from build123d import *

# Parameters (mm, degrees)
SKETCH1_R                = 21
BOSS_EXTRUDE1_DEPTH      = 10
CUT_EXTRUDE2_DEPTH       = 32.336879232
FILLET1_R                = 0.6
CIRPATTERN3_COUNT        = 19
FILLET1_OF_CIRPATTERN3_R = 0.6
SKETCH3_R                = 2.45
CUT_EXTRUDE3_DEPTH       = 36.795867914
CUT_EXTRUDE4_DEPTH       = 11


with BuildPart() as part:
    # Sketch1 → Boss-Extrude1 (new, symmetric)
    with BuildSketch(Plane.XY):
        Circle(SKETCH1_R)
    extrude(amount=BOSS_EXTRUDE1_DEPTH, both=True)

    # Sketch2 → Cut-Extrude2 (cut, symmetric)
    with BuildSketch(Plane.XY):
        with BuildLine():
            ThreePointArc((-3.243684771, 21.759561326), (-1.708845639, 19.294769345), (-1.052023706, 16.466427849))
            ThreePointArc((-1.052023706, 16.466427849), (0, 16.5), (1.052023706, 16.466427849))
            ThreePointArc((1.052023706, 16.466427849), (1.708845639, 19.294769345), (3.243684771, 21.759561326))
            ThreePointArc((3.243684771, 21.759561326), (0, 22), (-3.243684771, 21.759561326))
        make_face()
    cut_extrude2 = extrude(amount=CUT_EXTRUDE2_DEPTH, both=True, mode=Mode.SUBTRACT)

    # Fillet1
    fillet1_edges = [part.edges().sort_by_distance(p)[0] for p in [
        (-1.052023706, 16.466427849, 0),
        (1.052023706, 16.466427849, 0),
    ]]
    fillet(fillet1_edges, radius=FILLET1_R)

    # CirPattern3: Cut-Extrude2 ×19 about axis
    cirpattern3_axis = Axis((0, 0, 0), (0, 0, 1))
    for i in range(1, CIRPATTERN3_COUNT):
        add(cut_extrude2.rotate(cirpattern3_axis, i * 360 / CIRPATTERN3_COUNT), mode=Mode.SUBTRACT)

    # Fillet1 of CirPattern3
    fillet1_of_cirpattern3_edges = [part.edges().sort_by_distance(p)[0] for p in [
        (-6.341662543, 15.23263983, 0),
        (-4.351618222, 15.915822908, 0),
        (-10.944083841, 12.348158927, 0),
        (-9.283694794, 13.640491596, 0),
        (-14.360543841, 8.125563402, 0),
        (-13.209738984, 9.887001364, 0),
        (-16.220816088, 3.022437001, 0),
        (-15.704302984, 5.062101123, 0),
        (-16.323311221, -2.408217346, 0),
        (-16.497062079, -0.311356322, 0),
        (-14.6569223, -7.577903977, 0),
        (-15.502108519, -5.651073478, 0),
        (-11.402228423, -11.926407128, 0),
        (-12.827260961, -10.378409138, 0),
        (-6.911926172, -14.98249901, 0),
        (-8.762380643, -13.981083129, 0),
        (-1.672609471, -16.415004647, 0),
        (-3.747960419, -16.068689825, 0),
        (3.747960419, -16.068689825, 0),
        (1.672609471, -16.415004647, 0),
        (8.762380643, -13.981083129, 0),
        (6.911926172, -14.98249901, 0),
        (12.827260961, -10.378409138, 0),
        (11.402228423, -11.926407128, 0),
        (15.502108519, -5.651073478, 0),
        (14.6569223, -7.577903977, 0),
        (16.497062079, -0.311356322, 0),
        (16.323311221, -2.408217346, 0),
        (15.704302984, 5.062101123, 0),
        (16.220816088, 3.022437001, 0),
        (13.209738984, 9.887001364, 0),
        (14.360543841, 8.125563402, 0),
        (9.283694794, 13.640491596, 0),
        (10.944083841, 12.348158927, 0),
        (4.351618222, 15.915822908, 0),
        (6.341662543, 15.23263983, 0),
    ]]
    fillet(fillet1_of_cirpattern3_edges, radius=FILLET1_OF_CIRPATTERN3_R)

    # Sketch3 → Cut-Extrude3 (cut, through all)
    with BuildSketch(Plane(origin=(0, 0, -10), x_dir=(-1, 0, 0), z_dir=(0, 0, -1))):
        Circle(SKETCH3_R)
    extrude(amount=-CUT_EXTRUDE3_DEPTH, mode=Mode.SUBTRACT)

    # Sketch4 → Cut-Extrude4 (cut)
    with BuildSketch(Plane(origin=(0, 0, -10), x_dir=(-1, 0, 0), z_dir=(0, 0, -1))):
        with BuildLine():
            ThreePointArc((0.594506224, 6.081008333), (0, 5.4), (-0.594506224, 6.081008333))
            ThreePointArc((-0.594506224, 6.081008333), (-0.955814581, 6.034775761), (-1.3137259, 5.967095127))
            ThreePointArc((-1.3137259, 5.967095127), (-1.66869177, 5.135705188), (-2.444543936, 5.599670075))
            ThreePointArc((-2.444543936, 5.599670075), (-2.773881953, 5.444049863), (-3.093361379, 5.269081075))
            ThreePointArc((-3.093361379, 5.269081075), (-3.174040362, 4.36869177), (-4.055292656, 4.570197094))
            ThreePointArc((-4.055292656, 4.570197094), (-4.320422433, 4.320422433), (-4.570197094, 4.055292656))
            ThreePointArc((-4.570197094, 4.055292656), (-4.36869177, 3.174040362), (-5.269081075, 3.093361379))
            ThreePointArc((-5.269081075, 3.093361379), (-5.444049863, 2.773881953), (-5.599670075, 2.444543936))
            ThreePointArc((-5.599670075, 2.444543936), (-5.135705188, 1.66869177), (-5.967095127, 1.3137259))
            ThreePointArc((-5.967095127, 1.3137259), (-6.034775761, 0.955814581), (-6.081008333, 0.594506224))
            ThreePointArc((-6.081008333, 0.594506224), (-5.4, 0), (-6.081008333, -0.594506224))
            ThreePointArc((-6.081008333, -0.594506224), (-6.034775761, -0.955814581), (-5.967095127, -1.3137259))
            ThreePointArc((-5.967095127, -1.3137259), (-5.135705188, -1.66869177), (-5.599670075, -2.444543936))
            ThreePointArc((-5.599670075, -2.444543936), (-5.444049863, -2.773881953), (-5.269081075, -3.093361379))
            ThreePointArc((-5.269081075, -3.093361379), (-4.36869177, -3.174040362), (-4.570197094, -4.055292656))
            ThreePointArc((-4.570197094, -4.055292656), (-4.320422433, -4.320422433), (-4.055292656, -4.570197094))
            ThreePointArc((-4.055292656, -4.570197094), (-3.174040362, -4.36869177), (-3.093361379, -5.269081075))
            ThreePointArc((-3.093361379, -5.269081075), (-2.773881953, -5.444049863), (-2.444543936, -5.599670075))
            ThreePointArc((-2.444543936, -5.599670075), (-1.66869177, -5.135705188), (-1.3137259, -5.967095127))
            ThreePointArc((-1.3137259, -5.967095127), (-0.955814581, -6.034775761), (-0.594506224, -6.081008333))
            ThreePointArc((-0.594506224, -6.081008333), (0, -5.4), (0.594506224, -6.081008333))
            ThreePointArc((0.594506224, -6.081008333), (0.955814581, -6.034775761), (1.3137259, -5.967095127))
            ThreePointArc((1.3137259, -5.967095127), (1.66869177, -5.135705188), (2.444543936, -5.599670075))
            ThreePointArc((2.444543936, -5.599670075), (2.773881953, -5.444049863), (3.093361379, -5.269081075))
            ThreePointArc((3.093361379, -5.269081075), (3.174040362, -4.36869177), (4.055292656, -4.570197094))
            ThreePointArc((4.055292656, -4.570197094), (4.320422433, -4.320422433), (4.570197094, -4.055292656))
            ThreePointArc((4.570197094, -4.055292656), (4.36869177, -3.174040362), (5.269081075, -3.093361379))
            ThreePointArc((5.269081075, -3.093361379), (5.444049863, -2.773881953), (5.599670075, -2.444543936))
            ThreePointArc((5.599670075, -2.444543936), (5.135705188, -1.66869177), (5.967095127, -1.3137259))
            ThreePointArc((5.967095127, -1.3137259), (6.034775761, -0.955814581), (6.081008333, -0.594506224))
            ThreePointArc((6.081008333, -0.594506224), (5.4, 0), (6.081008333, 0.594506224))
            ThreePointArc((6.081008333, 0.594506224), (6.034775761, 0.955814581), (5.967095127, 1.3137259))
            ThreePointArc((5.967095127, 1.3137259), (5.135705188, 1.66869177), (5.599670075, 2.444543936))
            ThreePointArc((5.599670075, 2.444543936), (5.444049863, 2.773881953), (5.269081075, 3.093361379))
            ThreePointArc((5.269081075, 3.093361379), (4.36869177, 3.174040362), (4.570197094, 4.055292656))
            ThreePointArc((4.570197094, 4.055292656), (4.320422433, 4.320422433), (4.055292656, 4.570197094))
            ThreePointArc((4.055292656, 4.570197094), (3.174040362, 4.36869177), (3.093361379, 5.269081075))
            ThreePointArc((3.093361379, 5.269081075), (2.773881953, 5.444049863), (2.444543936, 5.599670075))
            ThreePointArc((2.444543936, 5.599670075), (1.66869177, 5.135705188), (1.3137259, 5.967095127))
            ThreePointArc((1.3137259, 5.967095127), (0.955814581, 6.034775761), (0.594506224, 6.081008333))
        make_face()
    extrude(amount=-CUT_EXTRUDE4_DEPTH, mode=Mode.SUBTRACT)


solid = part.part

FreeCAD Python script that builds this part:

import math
import FreeCAD as App
import Part
import Sketcher


def edges_at(feature, points):
    """Names of the edges that pass closest to the given points."""
    edges = feature.Shape.Edges
    near = lambda p: min(range(len(edges)), key=lambda i: edges[i].distToShape(Part.Vertex(*p))[0])
    return sorted({f"Edge{near(p) + 1}" for p in points})

doc = App.newDocument("Part")
body = doc.addObject("PartDesign::Body", "Body")

# Sketch on XY plane
sketch1 = doc.addObject("Sketcher::SketchObject", "Sketch")
body.addObject(sketch1)
sketch1.AttachmentSupport = (doc.XY_Plane, [""])
sketch1.MapMode = "FlatFace"
sketch1.addGeometry(Part.Circle(App.Vector(0, 0, 0), App.Vector(0, 0, 1), 21), False)
sketch1.addConstraint(Sketcher.Constraint("Coincident", 0, 3, -1, 1))
sketch1.addConstraint(Sketcher.Constraint("Diameter", 0, 42.0))
pad1 = doc.addObject("PartDesign::Pad", "Pad")
body.addObject(pad1)
pad1.Profile = sketch1
pad1.Length = 20
pad1.Midplane = True

# Sketch on XY plane
sketch2 = doc.addObject("Sketcher::SketchObject", "Sketch001")
body.addObject(sketch2)
sketch2.AttachmentSupport = (doc.XY_Plane, [""])
sketch2.MapMode = "FlatFace"
sketch2.addGeometry(Part.ArcOfCircle(Part.Circle(App.Vector(-9.9, 15.9, 0), App.Vector(0, 0, 1), 8.9), math.radians(4), math.radians(41)), False)
sketch2.addGeometry(Part.ArcOfCircle(Part.Circle(App.Vector(0, 0, 0), App.Vector(0, 0, 1), 16.5), math.radians(86.34), math.radians(93.66)), False)
sketch2.addGeometry(Part.ArcOfCircle(Part.Circle(App.Vector(9.9, 15.9, 0), App.Vector(0, 0, 1), 8.9), math.radians(139), math.radians(176)), False)
sketch2.addGeometry(Part.ArcOfCircle(Part.Circle(App.Vector(0, 0, 0), App.Vector(0, 0, 1), 22), math.radians(81.52), math.radians(98.48)), False)
sketch2.addConstraint(Sketcher.Constraint("Coincident", 0, 1, 1, 2))
sketch2.addConstraint(Sketcher.Constraint("Coincident", 1, 1, 2, 2))
sketch2.addConstraint(Sketcher.Constraint("Coincident", 2, 1, 3, 1))
sketch2.addConstraint(Sketcher.Constraint("Coincident", 3, 2, 0, 2))
sketch2.addConstraint(Sketcher.Constraint("Coincident", 1, 3, -1, 1))
sketch2.addConstraint(Sketcher.Constraint("Coincident", 3, 3, -1, 1))
sketch2.addConstraint(Sketcher.Constraint("Equal", 0, 2))
sketch2.addConstraint(Sketcher.Constraint("Symmetric", 0, 3, 2, 3, -2))
sketch2.addConstraint(Sketcher.Constraint("Radius", 3, 22.0))
sketch2.addConstraint(Sketcher.Constraint("Radius", 1, 16.5))
sketch2.addConstraint(Sketcher.Constraint("Radius", 0, 8.871802))
sketch2.addConstraint(Sketcher.Constraint("DistanceY", -1, 1, 0, 3, 15.900771))
sketch2.addConstraint(Sketcher.Constraint("DistanceY", -1, 1, 2, 1, 21.759561))
pocket1 = doc.addObject("PartDesign::Pocket", "Pocket")
body.addObject(pocket1)
pocket1.Profile = sketch2
pocket1.Length = 64.673758
pocket1.Midplane = True
doc.recompute()

fillet = doc.addObject("PartDesign::Fillet", "Fillet")
body.addObject(fillet)
fillet.Base = (pocket1, edges_at(pocket1, [(-1.052, 16.466, 0), (1.052, 16.466, 0)]))
fillet.Radius = 0.6
doc.recompute()

polarpattern = doc.addObject("PartDesign::PolarPattern", "PolarPattern")
body.addObject(polarpattern)
polarpattern.Originals = [pocket1]
polarpattern.Axis = (doc.Z_Axis, [""])
polarpattern.Angle = 360
polarpattern.Occurrences = 19
body.Tip = polarpattern
doc.recompute()

fillet2 = doc.addObject("PartDesign::Fillet", "Fillet001")
body.addObject(fillet2)
fillet2.Base = (polarpattern, edges_at(polarpattern, [
    (-6.342, 15.233, 0),
    (-4.352, 15.916, 0),
    (-10.944, 12.348, 0),
    (-9.284, 13.64, 0),
    (-14.361, 8.126, 0),
    (-13.21, 9.887, 0),
    (-16.221, 3.022, 0),
    (-15.704, 5.062, 0),
    (-16.323, -2.408, 0),
    (-16.497, -0.311, 0),
    (-14.657, -7.578, 0),
    (-15.502, -5.651, 0),
    (-11.402, -11.926, 0),
    (-12.827, -10.378, 0),
    (-6.912, -14.982, 0),
    (-8.762, -13.981, 0),
    (-1.673, -16.415, 0),
    (-3.748, -16.069, 0),
    (3.748, -16.069, 0),
    (1.673, -16.415, 0),
    (8.762, -13.981, 0),
    (6.912, -14.982, 0),
    (12.827, -10.378, 0),
    (11.402, -11.926, 0),
    (15.502, -5.651, 0),
    (14.657, -7.578, 0),
    (16.497, -0.311, 0),
    (16.323, -2.408, 0),
    (15.704, 5.062, 0),
    (16.221, 3.022, 0),
    (13.21, 9.887, 0),
    (14.361, 8.126, 0),
    (9.284, 13.64, 0),
    (10.944, 12.348, 0),
    (4.352, 15.916, 0),
    (6.342, 15.233, 0),
]))
fillet2.Radius = 0.6

# Sketch on XY plane
sketch3 = doc.addObject("Sketcher::SketchObject", "Sketch002")
body.addObject(sketch3)
sketch3.AttachmentSupport = (doc.XY_Plane, [""])
sketch3.MapMode = "FlatFace"
sketch3.AttachmentOffset = App.Placement(App.Vector(0, 0, -10), App.Rotation())
sketch3.addGeometry(Part.Circle(App.Vector(0, 0, 0), App.Vector(0, 0, 1), 2.5), False)
sketch3.addConstraint(Sketcher.Constraint("Coincident", 0, 3, -1, 1))
sketch3.addConstraint(Sketcher.Constraint("Diameter", 0, 4.9))
pocket2 = doc.addObject("PartDesign::Pocket", "Pocket001")
body.addObject(pocket2)
pocket2.Profile = sketch3
pocket2.Type = "ThroughAll"
pocket2.Reversed = True

# Sketch on XY plane
sketch4 = doc.addObject("Sketcher::SketchObject", "Sketch003")
body.addObject(sketch4)
sketch4.AttachmentSupport = (doc.XY_Plane, [""])
sketch4.MapMode = "FlatFace"
sketch4.AttachmentOffset = App.Placement(App.Vector(0, 0, -10), App.Rotation())
sketch4.addGeometry(Part.ArcOfCircle(Part.Circle(App.Vector(0, 6, 0), App.Vector(0, 0, 1), 0.6), math.radians(172), math.radians(368)), False)
sketch4.addGeometry(Part.ArcOfCircle(Part.Circle(App.Vector(0, 0, 0), App.Vector(0, 0, 1), 6.1), math.radians(77.58), math.radians(84.42)), False)
sketch4.addGeometry(Part.ArcOfCircle(Part.Circle(App.Vector(1.9, 5.7, 0), App.Vector(0, 0, 1), 0.6), math.radians(154), math.radians(350)), False)
sketch4.addGeometry(Part.ArcOfCircle(Part.Circle(App.Vector(0, 0, 0), App.Vector(0, 0, 1), 6.1), math.radians(59.58), math.radians(66.42)), False)
sketch4.addGeometry(Part.ArcOfCircle(Part.Circle(App.Vector(3.5, 4.9, 0), App.Vector(0, 0, 1), 0.6), math.radians(136), math.radians(332)), False)
sketch4.addGeometry(Part.ArcOfCircle(Part.Circle(App.Vector(0, 0, 0), App.Vector(0, 0, 1), 6.1), math.radians(41.58), math.radians(48.42)), False)
sketch4.addGeometry(Part.ArcOfCircle(Part.Circle(App.Vector(4.9, 3.5, 0), App.Vector(0, 0, 1), 0.6), math.radians(118), math.radians(314)), False)
sketch4.addGeometry(Part.ArcOfCircle(Part.Circle(App.Vector(0, 0, 0), App.Vector(0, 0, 1), 6.1), math.radians(23.58), math.radians(30.42)), False)
sketch4.addGeometry(Part.ArcOfCircle(Part.Circle(App.Vector(5.7, 1.9, 0), App.Vector(0, 0, 1), 0.6), math.radians(100), math.radians(296)), False)
sketch4.addGeometry(Part.ArcOfCircle(Part.Circle(App.Vector(0, 0, 0), App.Vector(0, 0, 1), 6.1), math.radians(5.58), math.radians(12.42)), False)
sketch4.addGeometry(Part.ArcOfCircle(Part.Circle(App.Vector(6, 0, 0), App.Vector(0, 0, 1), 0.6), math.radians(82), math.radians(278)), False)
sketch4.addGeometry(Part.ArcOfCircle(Part.Circle(App.Vector(0, 0, 0), App.Vector(0, 0, 1), 6.1), math.radians(-12.42), math.radians(-5.58)), False)
sketch4.addGeometry(Part.ArcOfCircle(Part.Circle(App.Vector(5.7, -1.9, 0), App.Vector(0, 0, 1), 0.6), math.radians(64), math.radians(260)), False)
sketch4.addGeometry(Part.ArcOfCircle(Part.Circle(App.Vector(0, 0, 0), App.Vector(0, 0, 1), 6.1), math.radians(-30.42), math.radians(-23.58)), False)
sketch4.addGeometry(Part.ArcOfCircle(Part.Circle(App.Vector(4.9, -3.5, 0), App.Vector(0, 0, 1), 0.6), math.radians(46), math.radians(242)), False)
sketch4.addGeometry(Part.ArcOfCircle(Part.Circle(App.Vector(0, 0, 0), App.Vector(0, 0, 1), 6.1), math.radians(-48.42), math.radians(-41.58)), False)
sketch4.addGeometry(Part.ArcOfCircle(Part.Circle(App.Vector(3.5, -4.9, 0), App.Vector(0, 0, 1), 0.6), math.radians(28), math.radians(224)), False)
sketch4.addGeometry(Part.ArcOfCircle(Part.Circle(App.Vector(0, 0, 0), App.Vector(0, 0, 1), 6.1), math.radians(-66.42), math.radians(-59.58)), False)
sketch4.addGeometry(Part.ArcOfCircle(Part.Circle(App.Vector(1.9, -5.7, 0), App.Vector(0, 0, 1), 0.6), math.radians(10), math.radians(206)), False)
sketch4.addGeometry(Part.ArcOfCircle(Part.Circle(App.Vector(0, 0, 0), App.Vector(0, 0, 1), 6.1), math.radians(-84.42), math.radians(-77.58)), False)
sketch4.addGeometry(Part.ArcOfCircle(Part.Circle(App.Vector(0, -6, 0), App.Vector(0, 0, 1), 0.6), math.radians(-8), math.radians(188)), False)
sketch4.addGeometry(Part.ArcOfCircle(Part.Circle(App.Vector(0, 0, 0), App.Vector(0, 0, 1), 6.1), math.radians(-102.42), math.radians(-95.58)), False)
sketch4.addGeometry(Part.ArcOfCircle(Part.Circle(App.Vector(-1.9, -5.7, 0), App.Vector(0, 0, 1), 0.6), math.radians(-26), math.radians(170)), False)
sketch4.addGeometry(Part.ArcOfCircle(Part.Circle(App.Vector(0, 0, 0), App.Vector(0, 0, 1), 6.1), math.radians(-120.42), math.radians(-113.58)), False)
sketch4.addGeometry(Part.ArcOfCircle(Part.Circle(App.Vector(-3.5, -4.9, 0), App.Vector(0, 0, 1), 0.6), math.radians(-44), math.radians(152)), False)
sketch4.addGeometry(Part.ArcOfCircle(Part.Circle(App.Vector(0, 0, 0), App.Vector(0, 0, 1), 6.1), math.radians(-138.42), math.radians(-131.58)), False)
sketch4.addGeometry(Part.ArcOfCircle(Part.Circle(App.Vector(-4.9, -3.5, 0), App.Vector(0, 0, 1), 0.6), math.radians(-62), math.radians(134)), False)
sketch4.addGeometry(Part.ArcOfCircle(Part.Circle(App.Vector(0, 0, 0), App.Vector(0, 0, 1), 6.1), math.radians(-156.42), math.radians(-149.58)), False)
sketch4.addGeometry(Part.ArcOfCircle(Part.Circle(App.Vector(-5.7, -1.9, 0), App.Vector(0, 0, 1), 0.6), math.radians(-80), math.radians(116)), False)
sketch4.addGeometry(Part.ArcOfCircle(Part.Circle(App.Vector(0, 0, 0), App.Vector(0, 0, 1), 6.1), math.radians(-174.42), math.radians(-167.58)), False)
sketch4.addGeometry(Part.ArcOfCircle(Part.Circle(App.Vector(-6, 0, 0), App.Vector(0, 0, 1), 0.6), math.radians(-98), math.radians(98)), False)
sketch4.addGeometry(Part.ArcOfCircle(Part.Circle(App.Vector(0, 0, 0), App.Vector(0, 0, 1), 6.1), math.radians(167.58), math.radians(174.42)), False)
sketch4.addGeometry(Part.ArcOfCircle(Part.Circle(App.Vector(-5.7, 1.9, 0), App.Vector(0, 0, 1), 0.6), math.radians(-116), math.radians(80)), False)
sketch4.addGeometry(Part.ArcOfCircle(Part.Circle(App.Vector(0, 0, 0), App.Vector(0, 0, 1), 6.1), math.radians(149.58), math.radians(156.42)), False)
sketch4.addGeometry(Part.ArcOfCircle(Part.Circle(App.Vector(-4.9, 3.5, 0), App.Vector(0, 0, 1), 0.6), math.radians(-134), math.radians(62)), False)
sketch4.addGeometry(Part.ArcOfCircle(Part.Circle(App.Vector(0, 0, 0), App.Vector(0, 0, 1), 6.1), math.radians(131.58), math.radians(138.42)), False)
sketch4.addGeometry(Part.ArcOfCircle(Part.Circle(App.Vector(-3.5, 4.9, 0), App.Vector(0, 0, 1), 0.6), math.radians(-152), math.radians(44)), False)
sketch4.addGeometry(Part.ArcOfCircle(Part.Circle(App.Vector(0, 0, 0), App.Vector(0, 0, 1), 6.1), math.radians(113.58), math.radians(120.42)), False)
sketch4.addGeometry(Part.ArcOfCircle(Part.Circle(App.Vector(-1.9, 5.7, 0), App.Vector(0, 0, 1), 0.6), math.radians(-170), math.radians(26)), False)
sketch4.addGeometry(Part.ArcOfCircle(Part.Circle(App.Vector(0, 0, 0), App.Vector(0, 0, 1), 6.1), math.radians(95.58), math.radians(102.42)), False)
sketch4.addConstraint(Sketcher.Constraint("Coincident", 0, 2, 1, 2))
sketch4.addConstraint(Sketcher.Constraint("Coincident", 1, 1, 2, 1))
sketch4.addConstraint(Sketcher.Constraint("Coincident", 2, 2, 3, 2))
sketch4.addConstraint(Sketcher.Constraint("Coincident", 3, 1, 4, 1))
sketch4.addConstraint(Sketcher.Constraint("Coincident", 4, 2, 5, 2))
sketch4.addConstraint(Sketcher.Constraint("Coincident", 5, 1, 6, 1))
sketch4.addConstraint(Sketcher.Constraint("Coincident", 6, 2, 7, 2))
sketch4.addConstraint(Sketcher.Constraint("Coincident", 7, 1, 8, 1))
sketch4.addConstraint(Sketcher.Constraint("Coincident", 8, 2, 9, 2))
sketch4.addConstraint(Sketcher.Constraint("Coincident", 9, 1, 10, 1))
sketch4.addConstraint(Sketcher.Constraint("Coincident", 10, 2, 11, 2))
sketch4.addConstraint(Sketcher.Constraint("Coincident", 11, 1, 12, 1))
sketch4.addConstraint(Sketcher.Constraint("Coincident", 12, 2, 13, 2))
sketch4.addConstraint(Sketcher.Constraint("Coincident", 13, 1, 14, 1))
sketch4.addConstraint(Sketcher.Constraint("Coincident", 14, 2, 15, 2))
sketch4.addConstraint(Sketcher.Constraint("Coincident", 15, 1, 16, 1))
sketch4.addConstraint(Sketcher.Constraint("Coincident", 16, 2, 17, 2))
sketch4.addConstraint(Sketcher.Constraint("Coincident", 17, 1, 18, 1))
sketch4.addConstraint(Sketcher.Constraint("Coincident", 18, 2, 19, 2))
sketch4.addConstraint(Sketcher.Constraint("Coincident", 19, 1, 20, 1))
sketch4.addConstraint(Sketcher.Constraint("Coincident", 20, 2, 21, 2))
sketch4.addConstraint(Sketcher.Constraint("Coincident", 21, 1, 22, 1))
sketch4.addConstraint(Sketcher.Constraint("Coincident", 22, 2, 23, 2))
sketch4.addConstraint(Sketcher.Constraint("Coincident", 23, 1, 24, 1))
sketch4.addConstraint(Sketcher.Constraint("Coincident", 24, 2, 25, 2))
sketch4.addConstraint(Sketcher.Constraint("Coincident", 25, 1, 26, 1))
sketch4.addConstraint(Sketcher.Constraint("Coincident", 26, 2, 27, 2))
sketch4.addConstraint(Sketcher.Constraint("Coincident", 27, 1, 28, 1))
sketch4.addConstraint(Sketcher.Constraint("Coincident", 28, 2, 29, 2))
sketch4.addConstraint(Sketcher.Constraint("Coincident", 29, 1, 30, 1))
sketch4.addConstraint(Sketcher.Constraint("Coincident", 30, 2, 31, 2))
sketch4.addConstraint(Sketcher.Constraint("Coincident", 31, 1, 32, 1))
sketch4.addConstraint(Sketcher.Constraint("Coincident", 32, 2, 33, 2))
sketch4.addConstraint(Sketcher.Constraint("Coincident", 33, 1, 34, 1))
sketch4.addConstraint(Sketcher.Constraint("Coincident", 34, 2, 35, 2))
sketch4.addConstraint(Sketcher.Constraint("Coincident", 35, 1, 36, 1))
sketch4.addConstraint(Sketcher.Constraint("Coincident", 36, 2, 37, 2))
sketch4.addConstraint(Sketcher.Constraint("Coincident", 37, 1, 38, 1))
sketch4.addConstraint(Sketcher.Constraint("Coincident", 38, 2, 39, 2))
sketch4.addConstraint(Sketcher.Constraint("Coincident", 39, 1, 0, 1))
sketch4.addConstraint(Sketcher.Constraint("Coincident", 1, 3, -1, 1))
sketch4.addConstraint(Sketcher.Constraint("Coincident", 3, 3, -1, 1))
sketch4.addConstraint(Sketcher.Constraint("Coincident", 5, 3, -1, 1))
sketch4.addConstraint(Sketcher.Constraint("Coincident", 7, 3, -1, 1))
sketch4.addConstraint(Sketcher.Constraint("Coincident", 9, 3, -1, 1))
sketch4.addConstraint(Sketcher.Constraint("Coincident", 11, 3, -1, 1))
sketch4.addConstraint(Sketcher.Constraint("Coincident", 13, 3, -1, 1))
sketch4.addConstraint(Sketcher.Constraint("Coincident", 15, 3, -1, 1))
sketch4.addConstraint(Sketcher.Constraint("Coincident", 17, 3, -1, 1))
sketch4.addConstraint(Sketcher.Constraint("Coincident", 19, 3, -1, 1))
sketch4.addConstraint(Sketcher.Constraint("Coincident", 21, 3, -1, 1))
sketch4.addConstraint(Sketcher.Constraint("Coincident", 23, 3, -1, 1))
sketch4.addConstraint(Sketcher.Constraint("Coincident", 25, 3, -1, 1))
sketch4.addConstraint(Sketcher.Constraint("Coincident", 27, 3, -1, 1))
sketch4.addConstraint(Sketcher.Constraint("Coincident", 29, 3, -1, 1))
sketch4.addConstraint(Sketcher.Constraint("Coincident", 31, 3, -1, 1))
sketch4.addConstraint(Sketcher.Constraint("Coincident", 33, 3, -1, 1))
sketch4.addConstraint(Sketcher.Constraint("Coincident", 35, 3, -1, 1))
sketch4.addConstraint(Sketcher.Constraint("Coincident", 37, 3, -1, 1))
sketch4.addConstraint(Sketcher.Constraint("Coincident", 39, 3, -1, 1))
sketch4.addConstraint(Sketcher.Constraint("Equal", 0, 2))
sketch4.addConstraint(Sketcher.Constraint("Equal", 1, 3))
sketch4.addConstraint(Sketcher.Constraint("Equal", 2, 4))
sketch4.addConstraint(Sketcher.Constraint("Equal", 3, 5))
sketch4.addConstraint(Sketcher.Constraint("Equal", 4, 6))
sketch4.addConstraint(Sketcher.Constraint("Equal", 5, 7))
sketch4.addConstraint(Sketcher.Constraint("Equal", 6, 8))
sketch4.addConstraint(Sketcher.Constraint("Equal", 7, 9))
sketch4.addConstraint(Sketcher.Constraint("Equal", 8, 10))
sketch4.addConstraint(Sketcher.Constraint("Equal", 9, 11))
sketch4.addConstraint(Sketcher.Constraint("Equal", 10, 12))
sketch4.addConstraint(Sketcher.Constraint("Equal", 11, 13))
sketch4.addConstraint(Sketcher.Constraint("Equal", 12, 14))
sketch4.addConstraint(Sketcher.Constraint("Equal", 13, 15))
sketch4.addConstraint(Sketcher.Constraint("Equal", 14, 16))
sketch4.addConstraint(Sketcher.Constraint("Equal", 15, 17))
sketch4.addConstraint(Sketcher.Constraint("Equal", 16, 18))
sketch4.addConstraint(Sketcher.Constraint("Equal", 17, 19))
sketch4.addConstraint(Sketcher.Constraint("Equal", 18, 20))
sketch4.addConstraint(Sketcher.Constraint("Equal", 19, 21))
sketch4.addConstraint(Sketcher.Constraint("Equal", 20, 22))
sketch4.addConstraint(Sketcher.Constraint("Equal", 21, 23))
sketch4.addConstraint(Sketcher.Constraint("Equal", 22, 24))
sketch4.addConstraint(Sketcher.Constraint("Equal", 23, 25))
sketch4.addConstraint(Sketcher.Constraint("Equal", 24, 26))
sketch4.addConstraint(Sketcher.Constraint("Equal", 25, 27))
sketch4.addConstraint(Sketcher.Constraint("Equal", 26, 28))
sketch4.addConstraint(Sketcher.Constraint("Equal", 27, 29))
sketch4.addConstraint(Sketcher.Constraint("Equal", 28, 30))
sketch4.addConstraint(Sketcher.Constraint("Equal", 29, 31))
sketch4.addConstraint(Sketcher.Constraint("Equal", 30, 32))
sketch4.addConstraint(Sketcher.Constraint("Equal", 31, 33))
sketch4.addConstraint(Sketcher.Constraint("Equal", 32, 34))
sketch4.addConstraint(Sketcher.Constraint("Equal", 33, 35))
sketch4.addConstraint(Sketcher.Constraint("Equal", 34, 36))
sketch4.addConstraint(Sketcher.Constraint("Equal", 35, 37))
sketch4.addConstraint(Sketcher.Constraint("Equal", 36, 38))
sketch4.addConstraint(Sketcher.Constraint("Equal", 37, 39))
sketch4.addConstraint(Sketcher.Constraint("Symmetric", 0, 3, 20, 3, -1, 1))
sketch4.addConstraint(Sketcher.Constraint("Symmetric", 2, 3, 22, 3, -1, 1))
sketch4.addConstraint(Sketcher.Constraint("Symmetric", 4, 3, 24, 3, -1, 1))
sketch4.addConstraint(Sketcher.Constraint("Symmetric", 6, 3, 26, 3, -1, 1))
sketch4.addConstraint(Sketcher.Constraint("Symmetric", 8, 3, 28, 3, -1, 1))
sketch4.addConstraint(Sketcher.Constraint("Symmetric", 10, 3, 30, 3, -1, 1))
sketch4.addConstraint(Sketcher.Constraint("Symmetric", 12, 3, 32, 3, -1, 1))
sketch4.addConstraint(Sketcher.Constraint("Symmetric", 14, 3, 34, 3, -1, 1))
sketch4.addConstraint(Sketcher.Constraint("Symmetric", 16, 3, 36, 3, -1, 1))
sketch4.addConstraint(Sketcher.Constraint("Symmetric", 18, 3, 38, 3, -1, 1))
sketch4.addConstraint(Sketcher.Constraint("Symmetric", 18, 3, 22, 3, -2))
sketch4.addConstraint(Sketcher.Constraint("Symmetric", 16, 3, 24, 3, -2))
sketch4.addConstraint(Sketcher.Constraint("Symmetric", 14, 3, 26, 3, -2))
sketch4.addConstraint(Sketcher.Constraint("Symmetric", 12, 3, 28, 3, -2))
sketch4.addConstraint(Sketcher.Constraint("PointOnObject", 0, 3, -2))
sketch4.addConstraint(Sketcher.Constraint("PointOnObject", 10, 3, -1))
sketch4.addConstraint(Sketcher.Constraint("Radius", 0, 0.6))
sketch4.addConstraint(Sketcher.Constraint("Radius", 1, 6.11))
sketch4.addConstraint(Sketcher.Constraint("DistanceY", -1, 1, 0, 3, 6.0))
sketch4.addConstraint(Sketcher.Constraint("DistanceX", -1, 1, 10, 3, 6.0))
sketch4.addConstraint(Sketcher.Constraint("DistanceX", -1, 1, 2, 3, 1.854102))
sketch4.addConstraint(Sketcher.Constraint("DistanceY", -1, 1, 4, 3, 4.854102))
sketch4.addConstraint(Sketcher.Constraint("DistanceX", -1, 1, 6, 3, 4.854102))
sketch4.addConstraint(Sketcher.Constraint("DistanceY", -1, 1, 8, 3, 1.854102))
sketch4.addConstraint(Sketcher.Constraint("DistanceY", -1, 1, 2, 3, 5.706339))
sketch4.addConstraint(Sketcher.Constraint("DistanceX", -1, 1, 4, 3, 3.526712))
sketch4.addConstraint(Sketcher.Constraint("DistanceY", -1, 1, 6, 3, 3.526712))
sketch4.addConstraint(Sketcher.Constraint("DistanceX", -1, 1, 8, 3, 5.706339))
pocket3 = doc.addObject("PartDesign::Pocket", "Pocket002")
body.addObject(pocket3)
pocket3.Profile = sketch4
pocket3.Length = 11
pocket3.Reversed = True

doc.recompute()
